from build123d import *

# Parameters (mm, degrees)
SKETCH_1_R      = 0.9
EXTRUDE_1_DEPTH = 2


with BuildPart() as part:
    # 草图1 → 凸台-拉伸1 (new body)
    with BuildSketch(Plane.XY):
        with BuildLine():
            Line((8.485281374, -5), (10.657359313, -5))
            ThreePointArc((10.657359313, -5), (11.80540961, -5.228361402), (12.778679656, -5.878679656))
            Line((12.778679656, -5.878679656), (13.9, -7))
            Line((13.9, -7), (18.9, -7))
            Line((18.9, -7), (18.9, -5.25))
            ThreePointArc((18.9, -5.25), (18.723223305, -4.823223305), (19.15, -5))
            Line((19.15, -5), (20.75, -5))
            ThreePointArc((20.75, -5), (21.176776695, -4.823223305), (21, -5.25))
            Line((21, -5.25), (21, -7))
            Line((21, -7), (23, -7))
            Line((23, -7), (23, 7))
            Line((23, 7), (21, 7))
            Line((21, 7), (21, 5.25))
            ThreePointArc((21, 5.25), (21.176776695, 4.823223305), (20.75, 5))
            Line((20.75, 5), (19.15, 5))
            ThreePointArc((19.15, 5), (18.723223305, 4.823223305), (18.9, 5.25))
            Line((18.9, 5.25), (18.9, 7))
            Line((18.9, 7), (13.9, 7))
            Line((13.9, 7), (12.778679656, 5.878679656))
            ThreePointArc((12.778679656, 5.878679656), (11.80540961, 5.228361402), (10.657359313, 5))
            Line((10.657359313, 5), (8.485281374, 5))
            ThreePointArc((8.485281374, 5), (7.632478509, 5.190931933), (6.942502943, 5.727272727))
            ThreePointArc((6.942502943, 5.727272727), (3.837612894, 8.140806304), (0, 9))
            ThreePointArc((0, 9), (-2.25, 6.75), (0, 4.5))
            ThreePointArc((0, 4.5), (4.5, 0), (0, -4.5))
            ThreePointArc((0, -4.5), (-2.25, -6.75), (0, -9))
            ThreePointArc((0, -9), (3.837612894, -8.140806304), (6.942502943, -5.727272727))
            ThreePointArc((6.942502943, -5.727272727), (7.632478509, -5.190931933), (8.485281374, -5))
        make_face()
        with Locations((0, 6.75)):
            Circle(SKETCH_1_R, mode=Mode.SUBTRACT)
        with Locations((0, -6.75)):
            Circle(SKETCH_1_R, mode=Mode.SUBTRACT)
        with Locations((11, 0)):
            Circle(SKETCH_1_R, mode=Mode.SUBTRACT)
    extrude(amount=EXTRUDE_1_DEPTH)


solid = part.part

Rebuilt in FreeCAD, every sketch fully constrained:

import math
import FreeCAD as App
import Part
import Sketcher

V = App.Vector

doc = App.newDocument("Part")
params = doc.addObject("Spreadsheet::Sheet", "Params")
for row, (alias, value) in enumerate([
    ("sketch1_radius", "3 mm"),
    ("sketch1_radius2", "2 mm"),
    ("sketch1_radius3", "9 mm"),
    ("sketch1_diameter", "1.8 mm"),
    ("sketch1_radius4", "4.5 mm"),
    ("pad1_length", "2 mm"),
], start=1):
    params.set(f"A{row}", alias)
    params.set(f"B{row}", "=" + value)
    params.setAlias(f"B{row}", alias)

body = doc.addObject("PartDesign::Body", "Body")

# Sketch on XY plane
sketch1 = body.newObject("Sketcher::SketchObject", "Sketch")
sketch1.AttachmentSupport = (doc.getObject("XY_Plane"), [""])
sketch1.MapMode = "FlatFace"
sketch1.addGeometry([
    Part.LineSegment(V(8.49, -5, 0), V(10.66, -5, 0)),  # 0
    Part.ArcOfCircle(Part.Circle(V(10.66, -8, 0), V(0, 0, 1), 3), math.radians(45), math.radians(90)),  # 1
    Part.LineSegment(V(12.78, -5.88, 0), V(13.9, -7, 0)),  # 2
    Part.LineSegment(V(13.9, -7, 0), V(18.9, -7, 0)),  # 3
    Part.LineSegment(V(18.9, -7, 0), V(18.9, -5.25, 0)),  # 4
    Part.ArcOfCircle(Part.Circle(V(18.9, -5, 0), V(0, 0, 1), 0.25), math.radians(0), math.radians(270)),  # 5
    Part.LineSegment(V(19.15, -5, 0), V(20.75, -5, 0)),  # 6
    Part.ArcOfCircle(Part.Circle(V(21, -5, 0), V(0, 0, 1), 0.25), math.radians(-90), math.radians(180)),  # 7
    Part.LineSegment(V(21, -5.25, 0), V(21, -7, 0)),  # 8
    Part.LineSegment(V(21, -7, 0), V(23, -7, 0)),  # 9
    Part.LineSegment(V(23, -7, 0), V(23, 7, 0)),  # 10
    Part.LineSegment(V(23, 7, 0), V(21, 7, 0)),  # 11
    Part.LineSegment(V(21, 7, 0), V(21, 5.25, 0)),  # 12
    Part.ArcOfCircle(Part.Circle(V(21, 5, 0), V(0, 0, 1), 0.25), math.radians(180), math.radians(450)),  # 13
    Part.LineSegment(V(20.75, 5, 0), V(19.15, 5, 0)),  # 14
    Part.ArcOfCircle(Part.Circle(V(18.9, 5, 0), V(0, 0, 1), 0.25), math.radians(90), math.radians(360)),  # 15
    Part.LineSegment(V(18.9, 5.25, 0), V(18.9, 7, 0)),  # 16
    Part.LineSegment(V(18.9, 7, 0), V(13.9, 7, 0)),  # 17
    Part.LineSegment(V(13.9, 7, 0), V(12.78, 5.88, 0)),  # 18
    Part.ArcOfCircle(Part.Circle(V(10.66, 8, 0), V(0, 0, 1), 3), math.radians(-90), math.radians(-45)),  # 19
    Part.LineSegment(V(10.66, 5, 0), V(8.49, 5, 0)),  # 20
    Part.ArcOfCircle(Part.Circle(V(8.49, 7, 0), V(0, 0, 1), 2), math.radians(-140), math.radians(-90)),  # 21
    Part.ArcOfCircle(Part.Circle(V(0, 0, 0), V(0, 0, 1), 9), math.radians(40), math.radians(90)),  # 22
    Part.ArcOfCircle(Part.Circle(V(0, 6.75, 0), V(0, 0, 1), 2.25), math.radians(90), math.radians(270)),  # 23
    Part.ArcOfCircle(Part.Circle(V(0, 0, 0), V(0, 0, 1), 4.5), math.radians(-90), math.radians(90)),  # 24
    Part.ArcOfCircle(Part.Circle(V(0, -6.75, 0), V(0, 0, 1), 2.25), math.radians(90), math.radians(270)),  # 25
    Part.ArcOfCircle(Part.Circle(V(0, 0, 0), V(0, 0, 1), 9), math.radians(-90), math.radians(-40)),  # 26
    Part.ArcOfCircle(Part.Circle(V(8.49, -7, 0), V(0, 0, 1), 2), math.radians(90), math.radians(140)),  # 27
    Part.Circle(V(0, -6.75, 0), V(0, 0, 1), 0.9),  # 28
    Part.Circle(V(0, 6.75, 0), V(0, 0, 1), 0.9),  # 29
    Part.Circle(V(11, 0, 0), V(0, 0, 1), 0.9),  # 30
], False)
sketch1.addConstraint([
    Sketcher.Constraint("Tangent", 0, 2, 1, 2),
    Sketcher.Constraint("Tangent", 1, 1, 2, 1),
    Sketcher.Constraint("Coincident", 2, 2, 3, 1),
    Sketcher.Constraint("Coincident", 3, 2, 4, 1),
    Sketcher.Constraint("Coincident", 4, 2, 5, 2),
    Sketcher.Constraint("Coincident", 5, 1, 6, 1),
    Sketcher.Constraint("Coincident", 6, 2, 7, 2),
    Sketcher.Constraint("Coincident", 7, 1, 8, 1),
    Sketcher.Constraint("Coincident", 8, 2, 9, 1),
    Sketcher.Constraint("Coincident", 9, 2, 10, 1),
    Sketcher.Constraint("Coincident", 10, 2, 11, 1),
    Sketcher.Constraint("Coincident", 11, 2, 12, 1),
    Sketcher.Constraint("Coincident", 12, 2, 13, 2),
    Sketcher.Constraint("Coincident", 13, 1, 14, 1),
    Sketcher.Constraint("Coincident", 14, 2, 15, 2),
    Sketcher.Constraint("Coincident", 15, 1, 16, 1),
    Sketcher.Constraint("Coincident", 16, 2, 17, 1),
    Sketcher.Constraint("Coincident", 17, 2, 18, 1),
    Sketcher.Constraint("Tangent", 18, 2, 19, 2),
    Sketcher.Constraint("Tangent", 19, 1, 20, 1),
    Sketcher.Constraint("Tangent", 20, 2, 21, 2),
    Sketcher.Constraint("Tangent", 21, 1, 22, 1),
    Sketcher.Constraint("Tangent", 22, 2, 23, 1),
    Sketcher.Constraint("Tangent", 23, 2, 24, 2),
    Sketcher.Constraint("Tangent", 24, 1, 25, 1),
    Sketcher.Constraint("Tangent", 25, 2, 26, 1),
    Sketcher.Constraint("Tangent", 26, 2, 27, 2),
    Sketcher.Constraint("Tangent", 27, 1, 0, 1),
    Sketcher.Constraint("Horizontal", 0),
    Sketcher.Constraint("Horizontal", 3),
    Sketcher.Constraint("Vertical", 4),
    Sketcher.Constraint("Horizontal", 6),
    Sketcher.Constraint("Vertical", 8),
    Sketcher.Constraint("Horizontal", 9),
    Sketcher.Constraint("Vertical", 10),
    Sketcher.Constraint("Horizontal", 11),
    Sketcher.Constraint("Vertical", 12),
    Sketcher.Constraint("Horizontal", 14),
    Sketcher.Constraint("Vertical", 16),
    Sketcher.Constraint("Horizontal", 17),
    Sketcher.Constraint("Horizontal", 20),
    Sketcher.Constraint("Coincident", 22, 3, -1, 1),
    Sketcher.Constraint("Coincident", 24, 3, -1, 1),
    Sketcher.Constraint("Coincident", 26, 3, -1, 1),
    Sketcher.Constraint("Coincident", 28, 3, 25, 3),
    Sketcher.Constraint("Coincident", 29, 3, 23, 3),
    Sketcher.Constraint("Equal", 5, 7),
    Sketcher.Constraint("Equal", 7, 13),
    Sketcher.Constraint("Equal", 13, 15),
    Sketcher.Constraint("Equal", 1, 19),
    Sketcher.Constraint("Equal", 23, 25),
    Sketcher.Constraint("Equal", 21, 27),
    Sketcher.Constraint("Equal", 28, 29),
    Sketcher.Constraint("Equal", 29, 30),
    Sketcher.Constraint("Symmetric", 7, 3, 13, 3, -1),
    Sketcher.Constraint("Symmetric", 5, 3, 15, 3, -1),
    Sketcher.Constraint("Symmetric", 1, 3, 19, 3, -1),
    Sketcher.Constraint("Symmetric", 8, 2, 11, 2, -1),
    Sketcher.Constraint("Symmetric", 3, 2, 16, 2, -1),
    Sketcher.Constraint("PointOnObject", 23, 3, -2),
    Sketcher.Constraint("PointOnObject", 25, 3, -2),
    Sketcher.Constraint("PointOnObject", 30, 3, -1),
    Sketcher.Constraint("Perpendicular", 2, 18),
    Sketcher.Constraint("Horizontal", 5, 3, 7, 3),
    Sketcher.Constraint("Horizontal", 7, 3, 0, 2),
    Sketcher.Constraint("Horizontal", 27, 3, 2, 2),
    Sketcher.Constraint("Horizontal", 0, 2, 5, 1),
    Sketcher.Constraint("Horizontal", 3, 2, 8, 2),
    Sketcher.Constraint("Horizontal", 15, 3, 13, 1),
    Sketcher.Constraint("Vertical", 15, 3, 3, 2),
    Sketcher.Constraint("Vertical", 13, 3, 7, 1),
    Sketcher.Constraint("Vertical", 2, 2, 17, 2),
    Sketcher.Constraint("Radius", 1, 3.0),
    Sketcher.Constraint("Radius", 21, 2.0),
    Sketcher.Constraint("Radius", 22, 9.0),
    Sketcher.Constraint("Diameter", 28, 1.8),
    Sketcher.Constraint("Radius", 24, 4.5),
    Sketcher.Constraint("DistanceX", 3, 1, 3, 2, 5.0),
    Sketcher.Constraint("DistanceX", 9, 1, 9, 2, 2.0),
    Sketcher.Constraint("DistanceY", 10, 1, 10, 2, 14.0),
    Sketcher.Constraint("Radius", 5, 0.25),
    Sketcher.Constraint("DistanceX", 6, 1, 6, 2, 1.6),
    Sketcher.Constraint("DistanceX", -1, 1, 7, 3, 21.0),
    Sketcher.Constraint("DistanceX", -1, 1, 30, 3, 11.0),
])
sketch1.setExpression("Constraints[72]", "Params.sketch1_radius")
sketch1.setExpression("Constraints[73]", "Params.sketch1_radius2")
sketch1.setExpression("Constraints[74]", "Params.sketch1_radius3")
sketch1.setExpression("Constraints[75]", "Params.sketch1_diameter")
sketch1.setExpression("Constraints[76]", "Params.sketch1_radius4")
pad1 = body.newObject("PartDesign::Pad", "Pad")
pad1.Profile = sketch1
pad1.setExpression("Length", "Params.pad1_length")

doc.recompute()
